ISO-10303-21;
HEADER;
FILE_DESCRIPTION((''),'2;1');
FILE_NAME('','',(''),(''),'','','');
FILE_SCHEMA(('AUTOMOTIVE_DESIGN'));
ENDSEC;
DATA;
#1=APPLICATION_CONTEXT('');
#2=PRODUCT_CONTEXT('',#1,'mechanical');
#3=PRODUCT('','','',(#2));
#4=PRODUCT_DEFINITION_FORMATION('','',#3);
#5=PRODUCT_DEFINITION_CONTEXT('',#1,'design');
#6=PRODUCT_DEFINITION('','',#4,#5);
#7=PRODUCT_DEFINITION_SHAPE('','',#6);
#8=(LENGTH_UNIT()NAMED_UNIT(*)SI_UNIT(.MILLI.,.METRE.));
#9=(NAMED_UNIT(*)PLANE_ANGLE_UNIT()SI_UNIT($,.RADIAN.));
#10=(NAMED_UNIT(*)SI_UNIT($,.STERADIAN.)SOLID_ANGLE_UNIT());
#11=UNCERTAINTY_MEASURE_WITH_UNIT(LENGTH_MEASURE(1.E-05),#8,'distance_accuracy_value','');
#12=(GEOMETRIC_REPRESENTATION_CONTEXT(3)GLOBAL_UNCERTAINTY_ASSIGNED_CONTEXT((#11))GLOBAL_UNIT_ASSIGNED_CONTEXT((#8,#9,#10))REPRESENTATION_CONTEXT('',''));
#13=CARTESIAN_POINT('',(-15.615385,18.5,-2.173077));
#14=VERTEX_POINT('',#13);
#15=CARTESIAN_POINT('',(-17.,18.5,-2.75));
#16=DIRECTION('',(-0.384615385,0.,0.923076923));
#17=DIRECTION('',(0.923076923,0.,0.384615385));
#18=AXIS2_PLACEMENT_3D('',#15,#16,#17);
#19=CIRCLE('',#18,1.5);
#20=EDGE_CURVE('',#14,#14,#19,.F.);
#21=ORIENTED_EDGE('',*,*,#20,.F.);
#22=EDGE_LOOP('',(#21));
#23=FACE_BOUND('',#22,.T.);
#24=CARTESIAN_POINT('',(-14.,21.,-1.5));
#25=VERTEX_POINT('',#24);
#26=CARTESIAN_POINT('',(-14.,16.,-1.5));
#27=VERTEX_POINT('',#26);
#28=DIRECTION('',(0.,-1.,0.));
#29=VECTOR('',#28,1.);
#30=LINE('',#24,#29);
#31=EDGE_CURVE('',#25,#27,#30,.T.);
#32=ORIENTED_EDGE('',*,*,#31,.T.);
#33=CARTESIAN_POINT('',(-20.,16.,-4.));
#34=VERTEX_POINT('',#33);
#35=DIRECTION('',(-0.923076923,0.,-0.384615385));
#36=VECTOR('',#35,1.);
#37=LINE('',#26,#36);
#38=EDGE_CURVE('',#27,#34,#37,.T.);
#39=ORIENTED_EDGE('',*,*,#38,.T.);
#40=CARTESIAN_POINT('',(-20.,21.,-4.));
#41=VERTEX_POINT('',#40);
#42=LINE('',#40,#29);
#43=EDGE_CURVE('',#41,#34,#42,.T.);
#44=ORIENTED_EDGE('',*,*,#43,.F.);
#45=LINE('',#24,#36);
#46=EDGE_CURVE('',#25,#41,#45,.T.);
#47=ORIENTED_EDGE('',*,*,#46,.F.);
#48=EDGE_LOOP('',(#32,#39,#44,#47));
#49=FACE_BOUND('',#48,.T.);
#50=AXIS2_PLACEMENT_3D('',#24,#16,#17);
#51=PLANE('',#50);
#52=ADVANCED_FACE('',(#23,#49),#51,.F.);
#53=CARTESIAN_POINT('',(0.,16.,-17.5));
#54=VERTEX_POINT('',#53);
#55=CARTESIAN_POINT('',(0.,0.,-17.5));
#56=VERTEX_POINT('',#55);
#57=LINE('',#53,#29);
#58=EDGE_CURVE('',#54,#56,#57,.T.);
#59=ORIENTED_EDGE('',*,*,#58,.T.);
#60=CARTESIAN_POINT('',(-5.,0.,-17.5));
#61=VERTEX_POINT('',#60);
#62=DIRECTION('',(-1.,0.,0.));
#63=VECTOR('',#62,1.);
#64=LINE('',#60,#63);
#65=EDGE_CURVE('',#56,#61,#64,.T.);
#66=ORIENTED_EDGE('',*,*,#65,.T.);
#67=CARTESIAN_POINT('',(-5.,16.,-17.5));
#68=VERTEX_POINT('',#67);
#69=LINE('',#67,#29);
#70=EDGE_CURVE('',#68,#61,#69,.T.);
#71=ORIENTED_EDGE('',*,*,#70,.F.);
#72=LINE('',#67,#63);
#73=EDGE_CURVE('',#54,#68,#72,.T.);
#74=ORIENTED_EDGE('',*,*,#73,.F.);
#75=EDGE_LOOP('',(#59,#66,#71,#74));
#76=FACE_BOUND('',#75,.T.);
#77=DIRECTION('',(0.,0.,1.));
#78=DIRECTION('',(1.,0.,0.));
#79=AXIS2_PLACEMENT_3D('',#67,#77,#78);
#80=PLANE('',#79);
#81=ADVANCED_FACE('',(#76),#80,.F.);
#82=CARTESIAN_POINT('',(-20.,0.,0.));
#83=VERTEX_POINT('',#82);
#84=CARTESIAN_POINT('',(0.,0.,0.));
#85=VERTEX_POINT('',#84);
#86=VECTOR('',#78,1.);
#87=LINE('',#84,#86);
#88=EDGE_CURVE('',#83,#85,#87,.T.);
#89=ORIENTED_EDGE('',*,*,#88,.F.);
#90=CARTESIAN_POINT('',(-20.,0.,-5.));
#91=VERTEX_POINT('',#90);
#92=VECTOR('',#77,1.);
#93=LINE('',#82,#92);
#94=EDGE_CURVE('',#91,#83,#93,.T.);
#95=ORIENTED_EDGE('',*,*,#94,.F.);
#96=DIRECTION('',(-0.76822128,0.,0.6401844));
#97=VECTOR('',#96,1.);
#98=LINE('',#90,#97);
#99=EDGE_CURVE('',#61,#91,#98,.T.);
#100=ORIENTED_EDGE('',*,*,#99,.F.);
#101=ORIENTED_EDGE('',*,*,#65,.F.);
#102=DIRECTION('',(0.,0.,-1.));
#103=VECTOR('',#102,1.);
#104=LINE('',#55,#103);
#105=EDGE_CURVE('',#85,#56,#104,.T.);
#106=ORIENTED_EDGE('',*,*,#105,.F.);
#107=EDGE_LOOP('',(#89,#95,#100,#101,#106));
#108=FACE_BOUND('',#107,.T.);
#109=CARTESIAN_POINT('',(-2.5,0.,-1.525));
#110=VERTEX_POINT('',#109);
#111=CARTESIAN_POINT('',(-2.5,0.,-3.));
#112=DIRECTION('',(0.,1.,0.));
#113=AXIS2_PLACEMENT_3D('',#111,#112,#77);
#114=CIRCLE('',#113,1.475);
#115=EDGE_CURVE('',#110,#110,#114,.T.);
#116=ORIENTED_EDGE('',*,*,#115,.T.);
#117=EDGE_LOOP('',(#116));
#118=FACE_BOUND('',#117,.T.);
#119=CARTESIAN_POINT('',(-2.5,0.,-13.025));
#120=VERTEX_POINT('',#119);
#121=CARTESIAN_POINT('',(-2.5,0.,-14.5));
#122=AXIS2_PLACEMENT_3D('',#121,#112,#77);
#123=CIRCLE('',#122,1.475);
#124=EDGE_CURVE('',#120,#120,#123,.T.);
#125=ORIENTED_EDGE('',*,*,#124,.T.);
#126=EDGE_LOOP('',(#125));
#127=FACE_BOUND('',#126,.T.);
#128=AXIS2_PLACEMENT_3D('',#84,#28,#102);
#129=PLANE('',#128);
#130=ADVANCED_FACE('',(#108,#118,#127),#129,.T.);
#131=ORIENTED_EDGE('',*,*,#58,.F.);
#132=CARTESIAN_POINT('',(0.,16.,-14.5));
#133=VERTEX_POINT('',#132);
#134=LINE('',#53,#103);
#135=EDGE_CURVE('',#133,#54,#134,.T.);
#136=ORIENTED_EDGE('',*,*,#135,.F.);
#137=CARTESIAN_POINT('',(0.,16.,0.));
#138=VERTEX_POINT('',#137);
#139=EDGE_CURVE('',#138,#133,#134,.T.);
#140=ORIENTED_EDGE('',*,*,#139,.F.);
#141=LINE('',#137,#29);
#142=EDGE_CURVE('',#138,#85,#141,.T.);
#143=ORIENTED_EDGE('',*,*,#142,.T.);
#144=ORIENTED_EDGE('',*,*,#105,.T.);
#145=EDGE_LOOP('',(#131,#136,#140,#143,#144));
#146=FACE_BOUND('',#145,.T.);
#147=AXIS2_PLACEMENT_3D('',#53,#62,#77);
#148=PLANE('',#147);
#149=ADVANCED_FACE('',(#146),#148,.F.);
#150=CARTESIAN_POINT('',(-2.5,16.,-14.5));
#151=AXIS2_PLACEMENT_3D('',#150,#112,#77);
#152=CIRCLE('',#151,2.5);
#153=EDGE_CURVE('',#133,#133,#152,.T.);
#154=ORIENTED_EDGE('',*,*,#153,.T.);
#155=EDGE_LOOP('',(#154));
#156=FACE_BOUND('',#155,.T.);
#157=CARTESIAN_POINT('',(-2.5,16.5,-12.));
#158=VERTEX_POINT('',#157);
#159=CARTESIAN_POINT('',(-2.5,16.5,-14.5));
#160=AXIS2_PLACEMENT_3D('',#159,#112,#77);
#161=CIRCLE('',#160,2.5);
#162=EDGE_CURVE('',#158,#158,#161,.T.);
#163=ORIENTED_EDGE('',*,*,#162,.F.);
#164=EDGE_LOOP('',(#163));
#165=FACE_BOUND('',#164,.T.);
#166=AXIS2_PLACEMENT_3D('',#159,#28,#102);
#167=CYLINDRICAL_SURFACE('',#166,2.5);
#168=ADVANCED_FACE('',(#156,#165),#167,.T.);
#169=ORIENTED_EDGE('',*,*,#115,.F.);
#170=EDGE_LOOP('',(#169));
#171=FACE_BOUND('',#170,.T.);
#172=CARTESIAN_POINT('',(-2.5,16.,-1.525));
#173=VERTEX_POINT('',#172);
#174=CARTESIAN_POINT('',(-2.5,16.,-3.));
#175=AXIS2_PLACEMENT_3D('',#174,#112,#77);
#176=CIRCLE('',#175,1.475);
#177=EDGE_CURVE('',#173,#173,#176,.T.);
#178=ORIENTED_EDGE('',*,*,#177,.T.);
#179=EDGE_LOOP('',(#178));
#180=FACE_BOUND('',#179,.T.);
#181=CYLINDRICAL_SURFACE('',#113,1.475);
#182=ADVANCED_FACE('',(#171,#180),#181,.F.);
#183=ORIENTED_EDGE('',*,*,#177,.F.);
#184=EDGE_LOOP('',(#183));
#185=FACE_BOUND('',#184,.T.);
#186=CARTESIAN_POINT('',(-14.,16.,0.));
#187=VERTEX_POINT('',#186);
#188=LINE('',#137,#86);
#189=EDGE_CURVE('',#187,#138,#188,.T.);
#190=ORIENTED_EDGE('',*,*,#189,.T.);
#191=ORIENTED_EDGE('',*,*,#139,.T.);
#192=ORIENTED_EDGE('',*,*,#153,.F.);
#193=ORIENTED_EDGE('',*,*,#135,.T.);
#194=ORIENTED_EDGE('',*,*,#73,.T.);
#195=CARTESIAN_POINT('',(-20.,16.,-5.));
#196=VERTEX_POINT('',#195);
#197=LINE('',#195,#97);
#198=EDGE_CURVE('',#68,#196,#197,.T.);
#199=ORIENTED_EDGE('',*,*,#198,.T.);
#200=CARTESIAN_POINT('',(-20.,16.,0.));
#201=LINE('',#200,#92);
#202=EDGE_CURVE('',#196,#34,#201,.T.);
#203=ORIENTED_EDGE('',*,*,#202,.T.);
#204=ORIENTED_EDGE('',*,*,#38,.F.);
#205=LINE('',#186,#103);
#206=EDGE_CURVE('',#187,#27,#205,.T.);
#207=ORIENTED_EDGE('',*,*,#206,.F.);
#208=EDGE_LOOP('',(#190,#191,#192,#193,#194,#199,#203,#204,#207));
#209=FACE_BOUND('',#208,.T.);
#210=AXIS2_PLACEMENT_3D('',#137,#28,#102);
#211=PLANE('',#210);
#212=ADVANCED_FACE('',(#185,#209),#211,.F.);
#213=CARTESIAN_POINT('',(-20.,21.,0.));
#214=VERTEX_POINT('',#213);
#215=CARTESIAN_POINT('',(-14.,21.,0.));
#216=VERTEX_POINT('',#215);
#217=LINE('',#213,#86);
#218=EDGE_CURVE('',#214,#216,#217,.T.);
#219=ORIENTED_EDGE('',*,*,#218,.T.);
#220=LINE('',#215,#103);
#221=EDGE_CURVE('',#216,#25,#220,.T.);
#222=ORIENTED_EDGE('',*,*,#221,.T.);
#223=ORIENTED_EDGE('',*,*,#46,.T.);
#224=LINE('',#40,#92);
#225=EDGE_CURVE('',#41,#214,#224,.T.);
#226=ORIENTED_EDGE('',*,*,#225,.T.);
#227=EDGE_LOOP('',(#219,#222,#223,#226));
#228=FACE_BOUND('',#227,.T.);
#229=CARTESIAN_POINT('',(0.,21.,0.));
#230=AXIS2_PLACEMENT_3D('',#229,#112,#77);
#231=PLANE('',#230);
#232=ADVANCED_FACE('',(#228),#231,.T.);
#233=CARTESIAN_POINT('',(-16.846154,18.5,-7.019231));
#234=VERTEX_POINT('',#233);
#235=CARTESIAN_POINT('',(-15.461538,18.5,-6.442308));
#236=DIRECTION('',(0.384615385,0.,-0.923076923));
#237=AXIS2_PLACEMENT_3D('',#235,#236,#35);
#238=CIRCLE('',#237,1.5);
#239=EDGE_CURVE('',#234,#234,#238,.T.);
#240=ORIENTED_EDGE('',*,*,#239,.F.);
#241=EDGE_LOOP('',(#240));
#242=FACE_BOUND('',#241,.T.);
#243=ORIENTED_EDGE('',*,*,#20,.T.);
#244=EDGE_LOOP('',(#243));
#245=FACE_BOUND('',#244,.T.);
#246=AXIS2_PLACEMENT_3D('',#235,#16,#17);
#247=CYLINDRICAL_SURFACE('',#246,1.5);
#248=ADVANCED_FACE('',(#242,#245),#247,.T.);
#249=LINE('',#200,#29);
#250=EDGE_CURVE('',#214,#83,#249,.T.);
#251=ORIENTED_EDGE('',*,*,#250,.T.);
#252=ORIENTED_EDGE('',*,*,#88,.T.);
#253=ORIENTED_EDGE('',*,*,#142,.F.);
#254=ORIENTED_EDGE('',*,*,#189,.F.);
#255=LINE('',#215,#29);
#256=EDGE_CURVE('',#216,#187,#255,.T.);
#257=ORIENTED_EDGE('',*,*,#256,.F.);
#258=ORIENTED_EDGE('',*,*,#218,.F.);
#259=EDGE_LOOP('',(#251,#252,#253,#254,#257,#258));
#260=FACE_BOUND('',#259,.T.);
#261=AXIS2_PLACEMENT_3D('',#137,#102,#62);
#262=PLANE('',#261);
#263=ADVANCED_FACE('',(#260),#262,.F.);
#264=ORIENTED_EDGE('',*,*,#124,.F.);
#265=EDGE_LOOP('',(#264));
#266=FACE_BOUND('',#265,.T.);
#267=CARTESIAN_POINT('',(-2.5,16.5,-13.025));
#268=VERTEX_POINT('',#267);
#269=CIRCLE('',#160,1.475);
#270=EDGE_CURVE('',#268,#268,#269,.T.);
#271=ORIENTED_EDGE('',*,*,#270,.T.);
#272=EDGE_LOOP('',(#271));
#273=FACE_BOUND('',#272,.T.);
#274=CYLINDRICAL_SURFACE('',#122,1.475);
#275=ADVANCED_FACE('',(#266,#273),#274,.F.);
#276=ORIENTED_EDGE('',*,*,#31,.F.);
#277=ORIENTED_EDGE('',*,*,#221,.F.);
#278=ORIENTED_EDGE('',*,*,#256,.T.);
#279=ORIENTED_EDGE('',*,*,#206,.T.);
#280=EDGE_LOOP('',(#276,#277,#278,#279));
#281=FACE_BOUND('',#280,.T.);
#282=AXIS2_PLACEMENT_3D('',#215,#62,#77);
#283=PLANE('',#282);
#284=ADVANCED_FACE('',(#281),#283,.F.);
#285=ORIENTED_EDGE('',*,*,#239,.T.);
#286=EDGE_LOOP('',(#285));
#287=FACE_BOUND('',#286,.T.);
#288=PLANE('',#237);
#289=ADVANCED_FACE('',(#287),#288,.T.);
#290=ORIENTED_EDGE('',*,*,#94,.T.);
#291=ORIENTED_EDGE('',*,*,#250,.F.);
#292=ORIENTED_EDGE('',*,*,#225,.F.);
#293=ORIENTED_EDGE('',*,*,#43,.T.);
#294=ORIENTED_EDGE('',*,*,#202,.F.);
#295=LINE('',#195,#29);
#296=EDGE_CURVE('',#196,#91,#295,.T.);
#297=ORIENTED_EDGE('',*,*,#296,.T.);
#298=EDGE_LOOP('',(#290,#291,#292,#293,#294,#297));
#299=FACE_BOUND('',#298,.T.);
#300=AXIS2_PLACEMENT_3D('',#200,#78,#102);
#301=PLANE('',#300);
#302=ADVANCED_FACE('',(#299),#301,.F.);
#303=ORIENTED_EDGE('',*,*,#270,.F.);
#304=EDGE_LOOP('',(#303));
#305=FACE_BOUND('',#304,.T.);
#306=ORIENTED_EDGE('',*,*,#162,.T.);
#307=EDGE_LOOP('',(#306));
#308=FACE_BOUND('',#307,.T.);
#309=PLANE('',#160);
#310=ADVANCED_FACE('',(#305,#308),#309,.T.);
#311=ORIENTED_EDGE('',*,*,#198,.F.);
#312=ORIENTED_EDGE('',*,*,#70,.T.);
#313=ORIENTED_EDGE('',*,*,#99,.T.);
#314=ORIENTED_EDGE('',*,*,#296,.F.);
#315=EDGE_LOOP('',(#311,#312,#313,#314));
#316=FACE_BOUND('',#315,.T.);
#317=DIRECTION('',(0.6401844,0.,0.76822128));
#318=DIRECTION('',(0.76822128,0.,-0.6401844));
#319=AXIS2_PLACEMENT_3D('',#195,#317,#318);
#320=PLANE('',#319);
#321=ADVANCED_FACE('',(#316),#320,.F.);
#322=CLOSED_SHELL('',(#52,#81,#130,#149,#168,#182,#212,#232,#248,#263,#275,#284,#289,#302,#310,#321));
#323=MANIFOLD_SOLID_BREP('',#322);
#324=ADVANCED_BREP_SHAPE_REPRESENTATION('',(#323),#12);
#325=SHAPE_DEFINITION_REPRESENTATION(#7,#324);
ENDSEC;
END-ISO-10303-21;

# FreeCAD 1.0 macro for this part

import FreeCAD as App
import Part
import Sketcher

V = App.Vector

doc = App.newDocument("Part")
body = doc.addObject("PartDesign::Body", "Body")

# Sketch on XZ plane
sketch1 = doc.addObject("Sketcher::SketchObject", "Sketch")
body.addObject(sketch1)
sketch1.AttachmentSupport = (doc.XZ_Plane, [""])
sketch1.MapMode = "FlatFace"
sketch1.addGeometry(Part.LineSegment(V(-5, -17.5, 0), V(-20, -5, 0)), False)
sketch1.addGeometry(Part.LineSegment(V(-20, -5, 0), V(-20, 0, 0)), False)
sketch1.addGeometry(Part.LineSegment(V(-20, 0, 0), V(0, 0, 0)), False)
sketch1.addGeometry(Part.LineSegment(V(0, 0, 0), V(0, -17.5, 0)), False)
sketch1.addGeometry(Part.LineSegment(V(0, -17.5, 0), V(-5, -17.5, 0)), False)
sketch1.addConstraint(Sketcher.Constraint("Coincident", 0, 2, 1, 1))
sketch1.addConstraint(Sketcher.Constraint("Coincident", 1, 2, 2, 1))
sketch1.addConstraint(Sketcher.Constraint("Coincident", 2, 2, 3, 1))
sketch1.addConstraint(Sketcher.Constraint("Coincident", 3, 2, 4, 1))
sketch1.addConstraint(Sketcher.Constraint("Coincident", 4, 2, 0, 1))
sketch1.addConstraint(Sketcher.Constraint("Vertical", 1))
sketch1.addConstraint(Sketcher.Constraint("Horizontal", 2))
sketch1.addConstraint(Sketcher.Constraint("Vertical", 3))
sketch1.addConstraint(Sketcher.Constraint("Horizontal", 4))
sketch1.addConstraint(Sketcher.Constraint("Coincident", 2, 2, -1, 1))
sketch1.addConstraint(Sketcher.Constraint("Equal", 4, 1))
sketch1.addConstraint(Sketcher.Constraint("DistanceX", 2, 1, 2, 2, 20.0))
sketch1.addConstraint(Sketcher.Constraint("DistanceX", 4, 2, 4, 1, 5.0))
sketch1.addConstraint(Sketcher.Constraint("DistanceY", 3, 2, 3, 1, 17.5))
pad1 = doc.addObject("PartDesign::Pad", "Pad")
body.addObject(pad1)
pad1.Profile = sketch1
pad1.Length = 16
pad1.Reversed = True

# Sketch on XZ plane
sketch2 = doc.addObject("Sketcher::SketchObject", "Sketch001")
body.addObject(sketch2)
sketch2.AttachmentSupport = (doc.XZ_Plane, [""])
sketch2.MapMode = "FlatFace"
sketch2.AttachmentOffset = App.Placement(V(0, 0, -16), App.Rotation())
sketch2.addGeometry(Part.Circle(V(-2.5, -14.5, 0), V(0, 0, 1), 1.475), False)
sketch2.addGeometry(Part.Circle(V(-2.5, -3, 0), V(0, 0, 1), 1.475), False)
sketch2.addConstraint(Sketcher.Constraint("Equal", 0, 1))
sketch2.addConstraint(Sketcher.Constraint("Vertical", 0, 3, 1, 3))
sketch2.addConstraint(Sketcher.Constraint("Diameter", 0, 2.95))
sketch2.addConstraint(Sketcher.Constraint("DistanceY", 1, 3, -1, 1, 3.0))
sketch2.addConstraint(Sketcher.Constraint("DistanceX", 0, 3, -1, 1, 2.5))
sketch2.addConstraint(Sketcher.Constraint("DistanceY", 0, 3, -1, 1, 14.5))
pocket1 = doc.addObject("PartDesign::Pocket", "Pocket")
body.addObject(pocket1)
pocket1.Profile = sketch2
pocket1.Type = "ThroughAll"
pocket1.Reversed = True

# Sketch on XZ plane
sketch3 = doc.addObject("Sketcher::SketchObject", "Sketch002")
body.addObject(sketch3)
sketch3.AttachmentSupport = (doc.XZ_Plane, [""])
sketch3.MapMode = "FlatFace"
sketch3.AttachmentOffset = App.Placement(V(0, 0, -16), App.Rotation())
sketch3.addGeometry(Part.LineSegment(V(-20, -4, 0), V(-20, 0, 0)), False)
sketch3.addGeometry(Part.LineSegment(V(-20, 0, 0), V(-14, 0, 0)), False)
sketch3.addGeometry(Part.LineSegment(V(-14, 0, 0), V(-14, -1.5, 0)), False)
sketch3.addGeometry(Part.LineSegment(V(-14, -1.5, 0), V(-20, -4, 0)), False)
sketch3.addConstraint(Sketcher.Constraint("Coincident", 0, 2, 1, 1))
sketch3.addConstraint(Sketcher.Constraint("Coincident", 1, 2, 2, 1))
sketch3.addConstraint(Sketcher.Constraint("Coincident", 2, 2, 3, 1))
sketch3.addConstraint(Sketcher.Constraint("Coincident", 3, 2, 0, 1))
sketch3.addConstraint(Sketcher.Constraint("Vertical", 0))
sketch3.addConstraint(Sketcher.Constraint("Horizontal", 1))
sketch3.addConstraint(Sketcher.Constraint("Vertical", 2))
sketch3.addConstraint(Sketcher.Constraint("PointOnObject", 0, 2, -1))
sketch3.addConstraint(Sketcher.Constraint("DistanceX", 1, 1, 1, 2, 6.0))
sketch3.addConstraint(Sketcher.Constraint("DistanceY", 0, 1, 0, 2, 4.0))
sketch3.addConstraint(Sketcher.Constraint("DistanceY", 2, 2, 2, 1, 1.5))
sketch3.addConstraint(Sketcher.Constraint("DistanceX", 0, 2, -1, 1, 20.0))
pad2 = doc.addObject("PartDesign::Pad", "Pad001")
body.addObject(pad2)
pad2.Profile = sketch3
pad2.Length = 5
pad2.Reversed = True

# Sketch on XZ plane
sketch4 = doc.addObject("Sketcher::SketchObject", "Sketch003")
body.addObject(sketch4)
sketch4.AttachmentSupport = (doc.XZ_Plane, [""])
sketch4.MapMode = "FlatFace"
sketch4.AttachmentOffset = App.Placement(V(0, 0, -16.5), App.Rotation())
sketch4.addGeometry(Part.Circle(V(-2.5, -14.5, 0), V(0, 0, 1), 2.5), False)
sketch4.addGeometry(Part.Circle(V(-2.5, -14.5, 0), V(0, 0, 1), 1.475), False)
sketch4.addConstraint(Sketcher.Constraint("Coincident", 1, 3, 0, 3))
sketch4.addConstraint(Sketcher.Constraint("Diameter", 0, 5.0))
sketch4.addConstraint(Sketcher.Constraint("Diameter", 1, 2.95))
sketch4.addConstraint(Sketcher.Constraint("DistanceX", 0, 3, -1, 1, 2.5))
sketch4.addConstraint(Sketcher.Constraint("DistanceY", 0, 3, -1, 1, 14.5))
pad3 = doc.addObject("PartDesign::Pad", "Pad002")
body.addObject(pad3)
pad3.Profile = sketch4
pad3.Length = 0.5

# Sketch on an angled plane
sketch5 = doc.addObject("Sketcher::SketchObject", "Sketch004")
body.addObject(sketch5)
sketch5.Placement = App.Placement(V(-1.538462, 0, 3.692308), App.Rotation(V(-0.923076923, 0, -0.384615385), V(0, 1, 0), V(0.384615385, 0, -0.923076923), "ZXY"))
sketch5.addGeometry(Part.Circle(V(16.75, 18.5, 0), V(0, 0, 1), 1.5), False)
sketch5.addConstraint(Sketcher.Constraint("Diameter", 0, 3.0))
sketch5.addConstraint(Sketcher.Constraint("DistanceY", -1, 1, 0, 3, 18.5))
sketch5.addConstraint(Sketcher.Constraint("DistanceX", -1, 1, 0, 3, 16.75))
pad4 = doc.addObject("PartDesign::Pad", "Pad003")
body.addObject(pad4)
pad4.Profile = sketch5
pad4.Length = 4

doc.recompute()
